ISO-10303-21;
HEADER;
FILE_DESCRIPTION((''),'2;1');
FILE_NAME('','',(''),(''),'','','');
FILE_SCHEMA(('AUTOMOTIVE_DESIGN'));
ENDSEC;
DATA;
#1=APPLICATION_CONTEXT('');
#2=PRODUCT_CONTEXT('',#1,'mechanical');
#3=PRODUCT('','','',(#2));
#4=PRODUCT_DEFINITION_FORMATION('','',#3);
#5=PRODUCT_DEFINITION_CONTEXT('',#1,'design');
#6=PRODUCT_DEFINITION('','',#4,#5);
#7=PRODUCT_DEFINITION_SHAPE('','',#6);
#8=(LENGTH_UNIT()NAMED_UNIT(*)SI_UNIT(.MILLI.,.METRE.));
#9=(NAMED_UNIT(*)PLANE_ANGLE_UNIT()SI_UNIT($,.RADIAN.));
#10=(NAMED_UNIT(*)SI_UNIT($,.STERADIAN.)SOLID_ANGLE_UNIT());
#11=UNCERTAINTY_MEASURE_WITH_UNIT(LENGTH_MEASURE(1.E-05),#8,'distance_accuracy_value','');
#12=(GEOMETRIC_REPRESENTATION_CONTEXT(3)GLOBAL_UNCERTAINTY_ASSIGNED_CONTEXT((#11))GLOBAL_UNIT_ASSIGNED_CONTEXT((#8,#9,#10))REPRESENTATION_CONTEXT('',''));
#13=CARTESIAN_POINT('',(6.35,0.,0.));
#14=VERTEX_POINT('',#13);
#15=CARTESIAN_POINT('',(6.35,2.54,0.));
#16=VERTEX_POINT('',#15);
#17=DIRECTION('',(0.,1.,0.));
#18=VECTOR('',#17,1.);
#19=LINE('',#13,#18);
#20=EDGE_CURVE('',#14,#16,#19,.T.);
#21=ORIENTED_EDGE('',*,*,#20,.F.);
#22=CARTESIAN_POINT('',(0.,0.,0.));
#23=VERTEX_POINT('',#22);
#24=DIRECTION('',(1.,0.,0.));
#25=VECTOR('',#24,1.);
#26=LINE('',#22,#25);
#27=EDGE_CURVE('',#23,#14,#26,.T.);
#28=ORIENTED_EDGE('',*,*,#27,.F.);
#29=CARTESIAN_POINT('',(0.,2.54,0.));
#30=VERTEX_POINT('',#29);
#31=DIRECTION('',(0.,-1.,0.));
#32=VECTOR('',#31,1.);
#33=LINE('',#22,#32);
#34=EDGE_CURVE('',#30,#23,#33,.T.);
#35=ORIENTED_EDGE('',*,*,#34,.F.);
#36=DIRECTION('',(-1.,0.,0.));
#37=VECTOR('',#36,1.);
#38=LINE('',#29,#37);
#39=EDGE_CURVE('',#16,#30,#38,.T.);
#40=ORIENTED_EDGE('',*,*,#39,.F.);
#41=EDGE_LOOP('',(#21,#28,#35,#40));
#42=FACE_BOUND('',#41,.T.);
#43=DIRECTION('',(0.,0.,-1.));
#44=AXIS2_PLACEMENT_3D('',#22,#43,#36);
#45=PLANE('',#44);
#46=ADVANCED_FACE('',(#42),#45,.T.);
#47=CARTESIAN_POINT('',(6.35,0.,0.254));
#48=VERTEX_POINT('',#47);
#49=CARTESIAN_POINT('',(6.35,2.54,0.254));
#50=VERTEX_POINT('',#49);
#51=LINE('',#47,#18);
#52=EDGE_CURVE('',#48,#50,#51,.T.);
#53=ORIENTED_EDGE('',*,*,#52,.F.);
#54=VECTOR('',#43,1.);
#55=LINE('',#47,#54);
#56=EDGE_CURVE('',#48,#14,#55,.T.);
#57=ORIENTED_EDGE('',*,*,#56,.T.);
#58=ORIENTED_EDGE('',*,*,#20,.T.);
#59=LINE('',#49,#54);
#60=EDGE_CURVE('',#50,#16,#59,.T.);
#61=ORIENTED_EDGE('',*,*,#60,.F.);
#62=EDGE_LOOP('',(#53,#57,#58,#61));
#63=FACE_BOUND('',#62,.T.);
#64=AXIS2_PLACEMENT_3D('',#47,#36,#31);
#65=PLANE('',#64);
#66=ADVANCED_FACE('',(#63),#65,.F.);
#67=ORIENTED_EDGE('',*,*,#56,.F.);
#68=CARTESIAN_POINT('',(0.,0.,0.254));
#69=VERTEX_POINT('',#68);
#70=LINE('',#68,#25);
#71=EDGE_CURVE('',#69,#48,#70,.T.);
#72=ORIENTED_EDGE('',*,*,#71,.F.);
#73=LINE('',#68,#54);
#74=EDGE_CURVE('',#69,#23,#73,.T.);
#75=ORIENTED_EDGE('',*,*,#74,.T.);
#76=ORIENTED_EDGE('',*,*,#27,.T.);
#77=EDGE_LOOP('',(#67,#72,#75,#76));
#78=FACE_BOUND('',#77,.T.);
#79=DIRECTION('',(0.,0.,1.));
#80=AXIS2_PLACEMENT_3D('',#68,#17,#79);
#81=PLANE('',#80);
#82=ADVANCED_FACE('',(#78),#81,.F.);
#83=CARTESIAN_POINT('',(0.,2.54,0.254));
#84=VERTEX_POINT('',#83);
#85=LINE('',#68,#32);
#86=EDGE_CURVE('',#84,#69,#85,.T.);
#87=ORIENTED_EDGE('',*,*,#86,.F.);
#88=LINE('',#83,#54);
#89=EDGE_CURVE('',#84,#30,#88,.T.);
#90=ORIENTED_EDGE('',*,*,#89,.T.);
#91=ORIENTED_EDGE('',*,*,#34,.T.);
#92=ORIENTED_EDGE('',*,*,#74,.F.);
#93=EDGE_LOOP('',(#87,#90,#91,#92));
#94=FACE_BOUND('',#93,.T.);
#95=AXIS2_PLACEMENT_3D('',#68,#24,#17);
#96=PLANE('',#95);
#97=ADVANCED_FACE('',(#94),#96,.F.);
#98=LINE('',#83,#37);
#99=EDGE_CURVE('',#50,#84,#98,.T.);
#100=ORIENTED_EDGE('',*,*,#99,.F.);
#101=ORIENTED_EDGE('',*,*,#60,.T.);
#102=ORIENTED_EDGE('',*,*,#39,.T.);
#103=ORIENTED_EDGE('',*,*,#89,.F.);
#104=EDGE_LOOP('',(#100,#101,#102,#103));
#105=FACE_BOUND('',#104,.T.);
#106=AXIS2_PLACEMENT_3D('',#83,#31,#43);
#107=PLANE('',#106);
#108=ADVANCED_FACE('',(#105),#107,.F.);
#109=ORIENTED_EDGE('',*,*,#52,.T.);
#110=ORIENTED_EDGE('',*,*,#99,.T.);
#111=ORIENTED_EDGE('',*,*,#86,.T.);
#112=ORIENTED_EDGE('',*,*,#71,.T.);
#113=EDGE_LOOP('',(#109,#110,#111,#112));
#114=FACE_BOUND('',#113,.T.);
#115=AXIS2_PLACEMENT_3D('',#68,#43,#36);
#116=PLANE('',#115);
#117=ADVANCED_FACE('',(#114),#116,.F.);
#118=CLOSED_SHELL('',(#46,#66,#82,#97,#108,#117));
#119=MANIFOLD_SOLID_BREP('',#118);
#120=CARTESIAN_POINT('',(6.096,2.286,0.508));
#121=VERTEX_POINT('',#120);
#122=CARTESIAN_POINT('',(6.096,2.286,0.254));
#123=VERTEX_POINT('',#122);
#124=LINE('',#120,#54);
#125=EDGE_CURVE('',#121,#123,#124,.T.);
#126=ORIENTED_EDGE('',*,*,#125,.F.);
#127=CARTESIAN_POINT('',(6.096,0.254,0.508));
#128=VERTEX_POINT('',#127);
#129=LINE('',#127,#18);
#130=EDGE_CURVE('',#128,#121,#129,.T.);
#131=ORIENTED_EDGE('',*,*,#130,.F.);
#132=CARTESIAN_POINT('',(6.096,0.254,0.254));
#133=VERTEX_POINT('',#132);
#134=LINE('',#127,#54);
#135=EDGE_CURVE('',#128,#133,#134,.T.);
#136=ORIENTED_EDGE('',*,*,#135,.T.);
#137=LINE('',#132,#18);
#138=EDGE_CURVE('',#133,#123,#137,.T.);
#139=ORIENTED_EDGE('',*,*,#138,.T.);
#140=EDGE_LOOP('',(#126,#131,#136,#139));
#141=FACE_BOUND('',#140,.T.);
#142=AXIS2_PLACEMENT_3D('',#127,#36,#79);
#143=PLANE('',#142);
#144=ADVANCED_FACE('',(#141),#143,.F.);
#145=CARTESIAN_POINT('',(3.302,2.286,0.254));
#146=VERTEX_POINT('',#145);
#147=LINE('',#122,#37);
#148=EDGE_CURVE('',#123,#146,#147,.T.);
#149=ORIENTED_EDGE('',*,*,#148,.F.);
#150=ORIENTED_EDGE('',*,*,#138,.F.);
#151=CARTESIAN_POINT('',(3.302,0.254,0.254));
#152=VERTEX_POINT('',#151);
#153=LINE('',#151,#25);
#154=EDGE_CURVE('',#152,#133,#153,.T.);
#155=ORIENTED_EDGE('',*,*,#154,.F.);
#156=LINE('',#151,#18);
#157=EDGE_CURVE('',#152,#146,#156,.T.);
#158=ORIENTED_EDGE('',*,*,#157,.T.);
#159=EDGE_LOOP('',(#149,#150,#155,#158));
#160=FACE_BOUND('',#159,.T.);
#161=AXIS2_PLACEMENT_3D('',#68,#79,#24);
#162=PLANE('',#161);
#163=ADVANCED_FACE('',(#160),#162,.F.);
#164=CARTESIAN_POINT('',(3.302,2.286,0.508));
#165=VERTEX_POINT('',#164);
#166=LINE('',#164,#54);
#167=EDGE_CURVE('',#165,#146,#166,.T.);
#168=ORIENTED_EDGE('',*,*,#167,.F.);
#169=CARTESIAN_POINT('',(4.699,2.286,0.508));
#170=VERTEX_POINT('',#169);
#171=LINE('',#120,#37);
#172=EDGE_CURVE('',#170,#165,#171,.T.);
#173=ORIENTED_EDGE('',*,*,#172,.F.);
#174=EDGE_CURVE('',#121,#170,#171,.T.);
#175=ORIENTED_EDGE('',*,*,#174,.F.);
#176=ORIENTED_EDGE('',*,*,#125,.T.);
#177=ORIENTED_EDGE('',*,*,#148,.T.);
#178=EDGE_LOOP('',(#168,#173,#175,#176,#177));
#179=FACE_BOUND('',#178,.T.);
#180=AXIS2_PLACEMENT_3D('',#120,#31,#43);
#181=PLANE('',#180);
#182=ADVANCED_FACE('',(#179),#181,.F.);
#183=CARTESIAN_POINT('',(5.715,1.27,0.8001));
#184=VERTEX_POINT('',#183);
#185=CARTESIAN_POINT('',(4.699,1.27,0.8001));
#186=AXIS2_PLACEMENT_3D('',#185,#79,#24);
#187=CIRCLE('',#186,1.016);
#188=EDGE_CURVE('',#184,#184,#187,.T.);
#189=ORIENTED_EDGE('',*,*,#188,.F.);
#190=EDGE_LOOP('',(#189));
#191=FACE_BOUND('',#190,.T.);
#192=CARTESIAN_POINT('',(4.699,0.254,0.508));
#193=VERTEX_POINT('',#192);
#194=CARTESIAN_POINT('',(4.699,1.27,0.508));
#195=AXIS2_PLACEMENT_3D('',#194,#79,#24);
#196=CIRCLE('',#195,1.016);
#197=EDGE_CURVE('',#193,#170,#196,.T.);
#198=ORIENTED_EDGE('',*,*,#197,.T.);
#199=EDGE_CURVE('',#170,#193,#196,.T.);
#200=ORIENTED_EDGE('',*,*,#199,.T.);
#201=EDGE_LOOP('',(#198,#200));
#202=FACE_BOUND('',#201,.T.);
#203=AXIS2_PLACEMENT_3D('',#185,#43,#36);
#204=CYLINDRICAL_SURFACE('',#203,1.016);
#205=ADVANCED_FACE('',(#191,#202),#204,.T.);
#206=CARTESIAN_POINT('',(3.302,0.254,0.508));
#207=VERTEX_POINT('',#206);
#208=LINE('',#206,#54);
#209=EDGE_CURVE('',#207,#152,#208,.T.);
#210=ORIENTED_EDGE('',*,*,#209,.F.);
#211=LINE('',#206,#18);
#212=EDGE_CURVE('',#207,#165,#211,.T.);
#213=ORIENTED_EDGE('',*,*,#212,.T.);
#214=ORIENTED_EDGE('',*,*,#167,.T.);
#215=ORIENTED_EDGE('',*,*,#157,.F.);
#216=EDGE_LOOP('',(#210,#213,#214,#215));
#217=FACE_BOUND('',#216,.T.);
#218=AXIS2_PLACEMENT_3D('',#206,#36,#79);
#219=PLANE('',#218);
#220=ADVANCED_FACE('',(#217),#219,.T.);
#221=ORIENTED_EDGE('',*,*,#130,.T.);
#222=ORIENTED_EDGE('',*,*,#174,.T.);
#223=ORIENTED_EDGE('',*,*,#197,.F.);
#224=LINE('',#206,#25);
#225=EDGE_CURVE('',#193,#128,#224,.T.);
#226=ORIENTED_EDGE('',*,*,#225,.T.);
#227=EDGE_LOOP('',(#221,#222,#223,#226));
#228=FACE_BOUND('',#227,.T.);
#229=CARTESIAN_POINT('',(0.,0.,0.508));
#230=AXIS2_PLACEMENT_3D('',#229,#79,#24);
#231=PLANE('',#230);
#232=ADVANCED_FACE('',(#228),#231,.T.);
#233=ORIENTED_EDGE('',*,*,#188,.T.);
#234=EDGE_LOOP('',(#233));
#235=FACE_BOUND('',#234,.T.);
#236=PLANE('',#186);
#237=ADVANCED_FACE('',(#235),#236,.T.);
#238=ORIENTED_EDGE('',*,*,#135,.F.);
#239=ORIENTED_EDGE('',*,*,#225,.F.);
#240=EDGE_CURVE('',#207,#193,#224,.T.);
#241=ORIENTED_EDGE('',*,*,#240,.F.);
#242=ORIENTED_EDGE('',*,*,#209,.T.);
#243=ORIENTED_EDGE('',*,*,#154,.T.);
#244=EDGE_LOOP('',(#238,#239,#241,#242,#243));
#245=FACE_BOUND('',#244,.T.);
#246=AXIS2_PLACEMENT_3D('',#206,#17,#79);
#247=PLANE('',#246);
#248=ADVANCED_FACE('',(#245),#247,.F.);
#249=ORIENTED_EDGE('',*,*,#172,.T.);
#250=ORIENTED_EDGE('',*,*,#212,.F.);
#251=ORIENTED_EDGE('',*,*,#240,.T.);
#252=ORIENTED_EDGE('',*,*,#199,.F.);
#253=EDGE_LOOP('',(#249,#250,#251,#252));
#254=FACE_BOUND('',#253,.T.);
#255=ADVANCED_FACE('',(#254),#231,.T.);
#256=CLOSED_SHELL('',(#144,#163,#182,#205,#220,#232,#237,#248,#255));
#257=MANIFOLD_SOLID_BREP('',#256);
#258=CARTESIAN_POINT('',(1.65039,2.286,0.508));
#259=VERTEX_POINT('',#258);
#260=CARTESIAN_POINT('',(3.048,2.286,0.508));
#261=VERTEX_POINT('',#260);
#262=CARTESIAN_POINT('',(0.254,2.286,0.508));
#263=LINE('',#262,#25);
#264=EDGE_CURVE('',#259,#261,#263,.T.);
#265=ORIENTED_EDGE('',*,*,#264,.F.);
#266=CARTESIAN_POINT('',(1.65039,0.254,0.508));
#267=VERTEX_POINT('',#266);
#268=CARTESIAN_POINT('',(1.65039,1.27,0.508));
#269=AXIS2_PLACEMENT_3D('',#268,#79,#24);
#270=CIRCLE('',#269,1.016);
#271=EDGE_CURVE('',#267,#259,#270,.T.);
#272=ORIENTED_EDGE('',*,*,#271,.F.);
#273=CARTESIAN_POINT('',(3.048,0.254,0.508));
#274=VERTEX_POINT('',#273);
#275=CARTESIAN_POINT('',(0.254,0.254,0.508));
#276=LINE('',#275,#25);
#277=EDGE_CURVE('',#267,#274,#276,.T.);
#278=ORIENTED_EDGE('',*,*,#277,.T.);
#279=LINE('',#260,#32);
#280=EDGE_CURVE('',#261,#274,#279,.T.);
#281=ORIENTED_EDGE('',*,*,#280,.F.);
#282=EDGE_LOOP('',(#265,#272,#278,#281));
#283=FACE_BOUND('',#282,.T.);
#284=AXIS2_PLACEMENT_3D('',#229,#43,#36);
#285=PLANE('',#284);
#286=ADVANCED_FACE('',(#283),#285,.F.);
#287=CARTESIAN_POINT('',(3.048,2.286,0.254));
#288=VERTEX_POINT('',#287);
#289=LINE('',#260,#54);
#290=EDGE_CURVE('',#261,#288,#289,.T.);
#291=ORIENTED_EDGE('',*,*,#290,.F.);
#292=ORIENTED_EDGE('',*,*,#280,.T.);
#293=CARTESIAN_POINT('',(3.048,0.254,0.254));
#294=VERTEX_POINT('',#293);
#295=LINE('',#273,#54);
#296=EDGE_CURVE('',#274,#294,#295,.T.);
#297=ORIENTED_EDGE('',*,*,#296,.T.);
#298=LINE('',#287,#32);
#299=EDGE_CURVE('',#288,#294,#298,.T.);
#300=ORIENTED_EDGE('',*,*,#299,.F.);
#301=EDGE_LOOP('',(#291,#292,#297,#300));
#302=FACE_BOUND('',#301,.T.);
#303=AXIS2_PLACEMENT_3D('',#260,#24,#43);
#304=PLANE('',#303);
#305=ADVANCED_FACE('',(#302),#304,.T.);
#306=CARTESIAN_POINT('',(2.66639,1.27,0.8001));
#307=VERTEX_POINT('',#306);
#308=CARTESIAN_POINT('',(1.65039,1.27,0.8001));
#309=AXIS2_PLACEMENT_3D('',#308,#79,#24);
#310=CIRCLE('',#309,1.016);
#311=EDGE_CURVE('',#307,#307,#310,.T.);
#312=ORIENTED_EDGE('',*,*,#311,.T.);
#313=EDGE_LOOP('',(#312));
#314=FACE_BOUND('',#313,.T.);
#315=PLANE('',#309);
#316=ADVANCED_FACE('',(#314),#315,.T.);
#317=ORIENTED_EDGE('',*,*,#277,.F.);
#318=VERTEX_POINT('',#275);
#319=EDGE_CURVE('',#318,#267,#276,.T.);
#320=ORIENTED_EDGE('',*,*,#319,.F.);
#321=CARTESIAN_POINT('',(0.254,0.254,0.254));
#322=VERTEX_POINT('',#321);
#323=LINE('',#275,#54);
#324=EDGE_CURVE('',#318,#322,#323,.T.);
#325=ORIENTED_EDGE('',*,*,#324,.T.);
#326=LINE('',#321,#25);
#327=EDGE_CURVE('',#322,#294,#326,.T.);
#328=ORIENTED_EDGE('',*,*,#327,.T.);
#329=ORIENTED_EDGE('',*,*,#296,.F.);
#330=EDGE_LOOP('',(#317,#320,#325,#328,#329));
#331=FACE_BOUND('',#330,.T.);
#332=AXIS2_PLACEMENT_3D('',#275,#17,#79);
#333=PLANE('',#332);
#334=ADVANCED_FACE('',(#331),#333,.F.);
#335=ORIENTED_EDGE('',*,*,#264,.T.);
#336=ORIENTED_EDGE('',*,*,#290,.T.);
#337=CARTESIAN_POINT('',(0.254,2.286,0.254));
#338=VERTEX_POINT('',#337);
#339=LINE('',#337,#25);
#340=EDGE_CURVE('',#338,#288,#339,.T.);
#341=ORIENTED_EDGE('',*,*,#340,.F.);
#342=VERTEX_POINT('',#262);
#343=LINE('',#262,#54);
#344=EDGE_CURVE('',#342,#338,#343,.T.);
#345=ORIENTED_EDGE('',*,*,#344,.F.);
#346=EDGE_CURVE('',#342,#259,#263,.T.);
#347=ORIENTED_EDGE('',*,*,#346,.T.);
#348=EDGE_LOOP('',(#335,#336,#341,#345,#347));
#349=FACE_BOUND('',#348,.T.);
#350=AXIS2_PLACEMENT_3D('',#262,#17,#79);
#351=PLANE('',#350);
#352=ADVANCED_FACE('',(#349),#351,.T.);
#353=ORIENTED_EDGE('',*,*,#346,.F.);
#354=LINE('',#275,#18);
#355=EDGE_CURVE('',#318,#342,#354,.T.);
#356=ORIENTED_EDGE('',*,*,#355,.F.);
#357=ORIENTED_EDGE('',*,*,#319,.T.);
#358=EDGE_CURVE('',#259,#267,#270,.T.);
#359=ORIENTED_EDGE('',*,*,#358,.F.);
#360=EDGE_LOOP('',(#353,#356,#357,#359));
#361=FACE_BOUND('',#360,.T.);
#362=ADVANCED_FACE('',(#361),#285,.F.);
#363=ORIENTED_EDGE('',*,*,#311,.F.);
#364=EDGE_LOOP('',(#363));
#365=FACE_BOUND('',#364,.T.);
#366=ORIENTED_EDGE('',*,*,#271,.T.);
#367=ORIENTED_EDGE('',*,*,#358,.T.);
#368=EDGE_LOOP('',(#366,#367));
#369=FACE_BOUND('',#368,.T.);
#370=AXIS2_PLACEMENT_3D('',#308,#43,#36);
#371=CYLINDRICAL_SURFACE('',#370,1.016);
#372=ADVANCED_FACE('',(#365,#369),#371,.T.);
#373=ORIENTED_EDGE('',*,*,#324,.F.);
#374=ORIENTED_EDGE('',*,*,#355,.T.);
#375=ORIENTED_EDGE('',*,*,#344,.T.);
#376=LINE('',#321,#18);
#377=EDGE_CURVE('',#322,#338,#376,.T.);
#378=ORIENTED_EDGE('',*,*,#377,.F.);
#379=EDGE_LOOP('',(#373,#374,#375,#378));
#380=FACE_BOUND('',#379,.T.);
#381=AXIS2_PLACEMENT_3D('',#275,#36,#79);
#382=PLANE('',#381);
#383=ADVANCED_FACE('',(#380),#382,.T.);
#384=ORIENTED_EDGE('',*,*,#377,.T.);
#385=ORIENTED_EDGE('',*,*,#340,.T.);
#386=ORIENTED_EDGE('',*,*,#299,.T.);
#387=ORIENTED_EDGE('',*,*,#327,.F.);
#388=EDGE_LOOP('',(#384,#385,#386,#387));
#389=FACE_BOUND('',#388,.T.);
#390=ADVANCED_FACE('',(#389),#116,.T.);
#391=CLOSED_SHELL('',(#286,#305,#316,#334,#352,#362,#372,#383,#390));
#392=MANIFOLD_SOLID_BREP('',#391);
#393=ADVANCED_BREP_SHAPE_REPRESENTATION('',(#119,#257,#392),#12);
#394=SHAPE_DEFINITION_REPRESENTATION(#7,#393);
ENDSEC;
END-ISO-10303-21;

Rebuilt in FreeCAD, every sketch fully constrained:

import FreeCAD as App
import Part
import Sketcher

V = App.Vector
Q = App.Units.Quantity

doc = App.newDocument("Part")
body = doc.addObject("PartDesign::Body", "Body")

sketch1 = body.newObject("Sketcher::SketchObject", "Sketch")
sketch1.AttachmentSupport = (doc.getObject("XY_Plane"), [""])
sketch1.MapMode = "FlatFace"
sketch1.addGeometry([
    Part.LineSegment(V(0, 2.5, 0), V(0, 0, 0)),
    Part.LineSegment(V(0, 0, 0), V(6.3, 0, 0)),
    Part.LineSegment(V(6.3, 0, 0), V(6.3, 2.5, 0)),
    Part.LineSegment(V(6.3, 2.5, 0), V(0, 2.5, 0)),
], False)
sketch1.addConstraint([
    Sketcher.Constraint("Coincident", 0, 2, 1, 1),
    Sketcher.Constraint("Coincident", 1, 2, 2, 1),
    Sketcher.Constraint("Coincident", 2, 2, 3, 1),
    Sketcher.Constraint("Coincident", 3, 2, 0, 1),
    Sketcher.Constraint("Vertical", 0),
    Sketcher.Constraint("Horizontal", 1),
    Sketcher.Constraint("Vertical", 2),
    Sketcher.Constraint("Horizontal", 3),
    Sketcher.Constraint("Coincident", 0, 2, -1, 1),
    Sketcher.Constraint("DistanceY", 0, 2, 0, 1, Q("0.1 in")),
    Sketcher.Constraint("DistanceX", 1, 1, 1, 2, Q("0.25 in")),
])
pad1 = body.newObject("PartDesign::Pad", "Pad")
pad1.Profile = sketch1
pad1.Length = Q("0.01 in")
body2 = doc.addObject("PartDesign::Body", "Body001")

sketch2 = body2.newObject("Sketcher::SketchObject", "Sketch001")
sketch2.AttachmentSupport = (doc.getObject("XY_Plane001"), [""])
sketch2.MapMode = "FlatFace"
sketch2.AttachmentOffset = App.Placement(V(0, 0, 0.01 * 25.4), App.Rotation())
sketch2.addGeometry([
    Part.LineSegment(V(0.3, 2.3, 0), V(0.3, 0.3, 0)),
    Part.LineSegment(V(0.3, 0.3, 0), V(3, 0.3, 0)),
    Part.LineSegment(V(3, 0.3, 0), V(3, 2.3, 0)),
    Part.LineSegment(V(3, 2.3, 0), V(0.3, 2.3, 0)),
], False)
sketch2.addConstraint([
    Sketcher.Constraint("Coincident", 0, 2, 1, 1),
    Sketcher.Constraint("Coincident", 1, 2, 2, 1),
    Sketcher.Constraint("Coincident", 2, 2, 3, 1),
    Sketcher.Constraint("Coincident", 3, 2, 0, 1),
    Sketcher.Constraint("Vertical", 0),
    Sketcher.Constraint("Horizontal", 1),
    Sketcher.Constraint("Vertical", 2),
    Sketcher.Constraint("Horizontal", 3),
    Sketcher.Constraint("DistanceX", 1, 1, 1, 2, Q("0.11 in")),
    Sketcher.Constraint("DistanceY", 0, 2, 0, 1, Q("0.08 in")),
    Sketcher.Constraint("DistanceX", -1, 1, 0, 2, Q("0.01 in")),
    Sketcher.Constraint("DistanceY", -1, 1, 0, 2, Q("0.01 in")),
])
pad2 = body2.newObject("PartDesign::Pad", "Pad001")
pad2.Profile = sketch2
pad2.Length = Q("0.01 in")

sketch3 = body2.newObject("Sketcher::SketchObject", "Sketch002")
sketch3.AttachmentSupport = (doc.getObject("XY_Plane001"), [""])
sketch3.MapMode = "FlatFace"
sketch3.AttachmentOffset = App.Placement(V(0, 0, 0.02 * 25.4), App.Rotation())
sketch3.addGeometry(Part.Circle(V(1.7, 1.3, 0), V(0, 0, 1), 1), False)
sketch3.addConstraint([
    Sketcher.Constraint("Diameter", 0, Q("0.08 in")),
    Sketcher.Constraint("DistanceY", -1, 1, 0, 3, Q("0.05 in")),
    Sketcher.Constraint("DistanceX", -1, 1, 0, 3, Q("1.65039 mm")),
])
pad3 = body2.newObject("PartDesign::Pad", "Pad002")
pad3.Profile = sketch3
pad3.Length = Q("0.0115 in")
body3 = doc.addObject("PartDesign::Body", "Body002")

sketch4 = body3.newObject("Sketcher::SketchObject", "Sketch003")
sketch4.AttachmentSupport = (doc.getObject("XY_Plane002"), [""])
sketch4.MapMode = "FlatFace"
sketch4.AttachmentOffset = App.Placement(V(0, 0, 0.01 * 25.4), App.Rotation())
sketch4.addGeometry([
    Part.LineSegment(V(3.3, 2.3, 0), V(3.3, 0.3, 0)),
    Part.LineSegment(V(3.3, 0.3, 0), V(6.1, 0.3, 0)),
    Part.LineSegment(V(6.1, 0.3, 0), V(6.1, 2.3, 0)),
    Part.LineSegment(V(6.1, 2.3, 0), V(3.3, 2.3, 0)),
], False)
sketch4.addConstraint([
    Sketcher.Constraint("Coincident", 0, 2, 1, 1),
    Sketcher.Constraint("Coincident", 1, 2, 2, 1),
    Sketcher.Constraint("Coincident", 2, 2, 3, 1),
    Sketcher.Constraint("Coincident", 3, 2, 0, 1),
    Sketcher.Constraint("Vertical", 0),
    Sketcher.Constraint("Horizontal", 1),
    Sketcher.Constraint("Vertical", 2),
    Sketcher.Constraint("Horizontal", 3),
    Sketcher.Constraint("DistanceX", 1, 1, 1, 2, Q("0.11 in")),
    Sketcher.Constraint("DistanceY", 0, 2, 0, 1, Q("0.08 in")),
    Sketcher.Constraint("DistanceX", -1, 1, 0, 2, Q("0.13 in")),
    Sketcher.Constraint("DistanceY", -1, 1, 0, 2, Q("0.01 in")),
])
pad4 = body3.newObject("PartDesign::Pad", "Pad003")
pad4.Profile = sketch4
pad4.Length = Q("0.01 in")

sketch5 = body3.newObject("Sketcher::SketchObject", "Sketch004")
sketch5.AttachmentSupport = (doc.getObject("XY_Plane002"), [""])
sketch5.MapMode = "FlatFace"
sketch5.AttachmentOffset = App.Placement(V(0, 0, 0.02 * 25.4), App.Rotation())
sketch5.addGeometry(Part.Circle(V(4.7, 1.3, 0), V(0, 0, 1), 1), False)
sketch5.addConstraint([
    Sketcher.Constraint("Diameter", 0, Q("0.08 in")),
    Sketcher.Constraint("DistanceY", -1, 1, 0, 3, Q("0.05 in")),
    Sketcher.Constraint("DistanceX", -1, 1, 0, 3, Q("0.185 in")),
])
pad5 = body3.newObject("PartDesign::Pad", "Pad004")
pad5.Profile = sketch5
pad5.Length = Q("0.0115 in")

doc.recompute()
